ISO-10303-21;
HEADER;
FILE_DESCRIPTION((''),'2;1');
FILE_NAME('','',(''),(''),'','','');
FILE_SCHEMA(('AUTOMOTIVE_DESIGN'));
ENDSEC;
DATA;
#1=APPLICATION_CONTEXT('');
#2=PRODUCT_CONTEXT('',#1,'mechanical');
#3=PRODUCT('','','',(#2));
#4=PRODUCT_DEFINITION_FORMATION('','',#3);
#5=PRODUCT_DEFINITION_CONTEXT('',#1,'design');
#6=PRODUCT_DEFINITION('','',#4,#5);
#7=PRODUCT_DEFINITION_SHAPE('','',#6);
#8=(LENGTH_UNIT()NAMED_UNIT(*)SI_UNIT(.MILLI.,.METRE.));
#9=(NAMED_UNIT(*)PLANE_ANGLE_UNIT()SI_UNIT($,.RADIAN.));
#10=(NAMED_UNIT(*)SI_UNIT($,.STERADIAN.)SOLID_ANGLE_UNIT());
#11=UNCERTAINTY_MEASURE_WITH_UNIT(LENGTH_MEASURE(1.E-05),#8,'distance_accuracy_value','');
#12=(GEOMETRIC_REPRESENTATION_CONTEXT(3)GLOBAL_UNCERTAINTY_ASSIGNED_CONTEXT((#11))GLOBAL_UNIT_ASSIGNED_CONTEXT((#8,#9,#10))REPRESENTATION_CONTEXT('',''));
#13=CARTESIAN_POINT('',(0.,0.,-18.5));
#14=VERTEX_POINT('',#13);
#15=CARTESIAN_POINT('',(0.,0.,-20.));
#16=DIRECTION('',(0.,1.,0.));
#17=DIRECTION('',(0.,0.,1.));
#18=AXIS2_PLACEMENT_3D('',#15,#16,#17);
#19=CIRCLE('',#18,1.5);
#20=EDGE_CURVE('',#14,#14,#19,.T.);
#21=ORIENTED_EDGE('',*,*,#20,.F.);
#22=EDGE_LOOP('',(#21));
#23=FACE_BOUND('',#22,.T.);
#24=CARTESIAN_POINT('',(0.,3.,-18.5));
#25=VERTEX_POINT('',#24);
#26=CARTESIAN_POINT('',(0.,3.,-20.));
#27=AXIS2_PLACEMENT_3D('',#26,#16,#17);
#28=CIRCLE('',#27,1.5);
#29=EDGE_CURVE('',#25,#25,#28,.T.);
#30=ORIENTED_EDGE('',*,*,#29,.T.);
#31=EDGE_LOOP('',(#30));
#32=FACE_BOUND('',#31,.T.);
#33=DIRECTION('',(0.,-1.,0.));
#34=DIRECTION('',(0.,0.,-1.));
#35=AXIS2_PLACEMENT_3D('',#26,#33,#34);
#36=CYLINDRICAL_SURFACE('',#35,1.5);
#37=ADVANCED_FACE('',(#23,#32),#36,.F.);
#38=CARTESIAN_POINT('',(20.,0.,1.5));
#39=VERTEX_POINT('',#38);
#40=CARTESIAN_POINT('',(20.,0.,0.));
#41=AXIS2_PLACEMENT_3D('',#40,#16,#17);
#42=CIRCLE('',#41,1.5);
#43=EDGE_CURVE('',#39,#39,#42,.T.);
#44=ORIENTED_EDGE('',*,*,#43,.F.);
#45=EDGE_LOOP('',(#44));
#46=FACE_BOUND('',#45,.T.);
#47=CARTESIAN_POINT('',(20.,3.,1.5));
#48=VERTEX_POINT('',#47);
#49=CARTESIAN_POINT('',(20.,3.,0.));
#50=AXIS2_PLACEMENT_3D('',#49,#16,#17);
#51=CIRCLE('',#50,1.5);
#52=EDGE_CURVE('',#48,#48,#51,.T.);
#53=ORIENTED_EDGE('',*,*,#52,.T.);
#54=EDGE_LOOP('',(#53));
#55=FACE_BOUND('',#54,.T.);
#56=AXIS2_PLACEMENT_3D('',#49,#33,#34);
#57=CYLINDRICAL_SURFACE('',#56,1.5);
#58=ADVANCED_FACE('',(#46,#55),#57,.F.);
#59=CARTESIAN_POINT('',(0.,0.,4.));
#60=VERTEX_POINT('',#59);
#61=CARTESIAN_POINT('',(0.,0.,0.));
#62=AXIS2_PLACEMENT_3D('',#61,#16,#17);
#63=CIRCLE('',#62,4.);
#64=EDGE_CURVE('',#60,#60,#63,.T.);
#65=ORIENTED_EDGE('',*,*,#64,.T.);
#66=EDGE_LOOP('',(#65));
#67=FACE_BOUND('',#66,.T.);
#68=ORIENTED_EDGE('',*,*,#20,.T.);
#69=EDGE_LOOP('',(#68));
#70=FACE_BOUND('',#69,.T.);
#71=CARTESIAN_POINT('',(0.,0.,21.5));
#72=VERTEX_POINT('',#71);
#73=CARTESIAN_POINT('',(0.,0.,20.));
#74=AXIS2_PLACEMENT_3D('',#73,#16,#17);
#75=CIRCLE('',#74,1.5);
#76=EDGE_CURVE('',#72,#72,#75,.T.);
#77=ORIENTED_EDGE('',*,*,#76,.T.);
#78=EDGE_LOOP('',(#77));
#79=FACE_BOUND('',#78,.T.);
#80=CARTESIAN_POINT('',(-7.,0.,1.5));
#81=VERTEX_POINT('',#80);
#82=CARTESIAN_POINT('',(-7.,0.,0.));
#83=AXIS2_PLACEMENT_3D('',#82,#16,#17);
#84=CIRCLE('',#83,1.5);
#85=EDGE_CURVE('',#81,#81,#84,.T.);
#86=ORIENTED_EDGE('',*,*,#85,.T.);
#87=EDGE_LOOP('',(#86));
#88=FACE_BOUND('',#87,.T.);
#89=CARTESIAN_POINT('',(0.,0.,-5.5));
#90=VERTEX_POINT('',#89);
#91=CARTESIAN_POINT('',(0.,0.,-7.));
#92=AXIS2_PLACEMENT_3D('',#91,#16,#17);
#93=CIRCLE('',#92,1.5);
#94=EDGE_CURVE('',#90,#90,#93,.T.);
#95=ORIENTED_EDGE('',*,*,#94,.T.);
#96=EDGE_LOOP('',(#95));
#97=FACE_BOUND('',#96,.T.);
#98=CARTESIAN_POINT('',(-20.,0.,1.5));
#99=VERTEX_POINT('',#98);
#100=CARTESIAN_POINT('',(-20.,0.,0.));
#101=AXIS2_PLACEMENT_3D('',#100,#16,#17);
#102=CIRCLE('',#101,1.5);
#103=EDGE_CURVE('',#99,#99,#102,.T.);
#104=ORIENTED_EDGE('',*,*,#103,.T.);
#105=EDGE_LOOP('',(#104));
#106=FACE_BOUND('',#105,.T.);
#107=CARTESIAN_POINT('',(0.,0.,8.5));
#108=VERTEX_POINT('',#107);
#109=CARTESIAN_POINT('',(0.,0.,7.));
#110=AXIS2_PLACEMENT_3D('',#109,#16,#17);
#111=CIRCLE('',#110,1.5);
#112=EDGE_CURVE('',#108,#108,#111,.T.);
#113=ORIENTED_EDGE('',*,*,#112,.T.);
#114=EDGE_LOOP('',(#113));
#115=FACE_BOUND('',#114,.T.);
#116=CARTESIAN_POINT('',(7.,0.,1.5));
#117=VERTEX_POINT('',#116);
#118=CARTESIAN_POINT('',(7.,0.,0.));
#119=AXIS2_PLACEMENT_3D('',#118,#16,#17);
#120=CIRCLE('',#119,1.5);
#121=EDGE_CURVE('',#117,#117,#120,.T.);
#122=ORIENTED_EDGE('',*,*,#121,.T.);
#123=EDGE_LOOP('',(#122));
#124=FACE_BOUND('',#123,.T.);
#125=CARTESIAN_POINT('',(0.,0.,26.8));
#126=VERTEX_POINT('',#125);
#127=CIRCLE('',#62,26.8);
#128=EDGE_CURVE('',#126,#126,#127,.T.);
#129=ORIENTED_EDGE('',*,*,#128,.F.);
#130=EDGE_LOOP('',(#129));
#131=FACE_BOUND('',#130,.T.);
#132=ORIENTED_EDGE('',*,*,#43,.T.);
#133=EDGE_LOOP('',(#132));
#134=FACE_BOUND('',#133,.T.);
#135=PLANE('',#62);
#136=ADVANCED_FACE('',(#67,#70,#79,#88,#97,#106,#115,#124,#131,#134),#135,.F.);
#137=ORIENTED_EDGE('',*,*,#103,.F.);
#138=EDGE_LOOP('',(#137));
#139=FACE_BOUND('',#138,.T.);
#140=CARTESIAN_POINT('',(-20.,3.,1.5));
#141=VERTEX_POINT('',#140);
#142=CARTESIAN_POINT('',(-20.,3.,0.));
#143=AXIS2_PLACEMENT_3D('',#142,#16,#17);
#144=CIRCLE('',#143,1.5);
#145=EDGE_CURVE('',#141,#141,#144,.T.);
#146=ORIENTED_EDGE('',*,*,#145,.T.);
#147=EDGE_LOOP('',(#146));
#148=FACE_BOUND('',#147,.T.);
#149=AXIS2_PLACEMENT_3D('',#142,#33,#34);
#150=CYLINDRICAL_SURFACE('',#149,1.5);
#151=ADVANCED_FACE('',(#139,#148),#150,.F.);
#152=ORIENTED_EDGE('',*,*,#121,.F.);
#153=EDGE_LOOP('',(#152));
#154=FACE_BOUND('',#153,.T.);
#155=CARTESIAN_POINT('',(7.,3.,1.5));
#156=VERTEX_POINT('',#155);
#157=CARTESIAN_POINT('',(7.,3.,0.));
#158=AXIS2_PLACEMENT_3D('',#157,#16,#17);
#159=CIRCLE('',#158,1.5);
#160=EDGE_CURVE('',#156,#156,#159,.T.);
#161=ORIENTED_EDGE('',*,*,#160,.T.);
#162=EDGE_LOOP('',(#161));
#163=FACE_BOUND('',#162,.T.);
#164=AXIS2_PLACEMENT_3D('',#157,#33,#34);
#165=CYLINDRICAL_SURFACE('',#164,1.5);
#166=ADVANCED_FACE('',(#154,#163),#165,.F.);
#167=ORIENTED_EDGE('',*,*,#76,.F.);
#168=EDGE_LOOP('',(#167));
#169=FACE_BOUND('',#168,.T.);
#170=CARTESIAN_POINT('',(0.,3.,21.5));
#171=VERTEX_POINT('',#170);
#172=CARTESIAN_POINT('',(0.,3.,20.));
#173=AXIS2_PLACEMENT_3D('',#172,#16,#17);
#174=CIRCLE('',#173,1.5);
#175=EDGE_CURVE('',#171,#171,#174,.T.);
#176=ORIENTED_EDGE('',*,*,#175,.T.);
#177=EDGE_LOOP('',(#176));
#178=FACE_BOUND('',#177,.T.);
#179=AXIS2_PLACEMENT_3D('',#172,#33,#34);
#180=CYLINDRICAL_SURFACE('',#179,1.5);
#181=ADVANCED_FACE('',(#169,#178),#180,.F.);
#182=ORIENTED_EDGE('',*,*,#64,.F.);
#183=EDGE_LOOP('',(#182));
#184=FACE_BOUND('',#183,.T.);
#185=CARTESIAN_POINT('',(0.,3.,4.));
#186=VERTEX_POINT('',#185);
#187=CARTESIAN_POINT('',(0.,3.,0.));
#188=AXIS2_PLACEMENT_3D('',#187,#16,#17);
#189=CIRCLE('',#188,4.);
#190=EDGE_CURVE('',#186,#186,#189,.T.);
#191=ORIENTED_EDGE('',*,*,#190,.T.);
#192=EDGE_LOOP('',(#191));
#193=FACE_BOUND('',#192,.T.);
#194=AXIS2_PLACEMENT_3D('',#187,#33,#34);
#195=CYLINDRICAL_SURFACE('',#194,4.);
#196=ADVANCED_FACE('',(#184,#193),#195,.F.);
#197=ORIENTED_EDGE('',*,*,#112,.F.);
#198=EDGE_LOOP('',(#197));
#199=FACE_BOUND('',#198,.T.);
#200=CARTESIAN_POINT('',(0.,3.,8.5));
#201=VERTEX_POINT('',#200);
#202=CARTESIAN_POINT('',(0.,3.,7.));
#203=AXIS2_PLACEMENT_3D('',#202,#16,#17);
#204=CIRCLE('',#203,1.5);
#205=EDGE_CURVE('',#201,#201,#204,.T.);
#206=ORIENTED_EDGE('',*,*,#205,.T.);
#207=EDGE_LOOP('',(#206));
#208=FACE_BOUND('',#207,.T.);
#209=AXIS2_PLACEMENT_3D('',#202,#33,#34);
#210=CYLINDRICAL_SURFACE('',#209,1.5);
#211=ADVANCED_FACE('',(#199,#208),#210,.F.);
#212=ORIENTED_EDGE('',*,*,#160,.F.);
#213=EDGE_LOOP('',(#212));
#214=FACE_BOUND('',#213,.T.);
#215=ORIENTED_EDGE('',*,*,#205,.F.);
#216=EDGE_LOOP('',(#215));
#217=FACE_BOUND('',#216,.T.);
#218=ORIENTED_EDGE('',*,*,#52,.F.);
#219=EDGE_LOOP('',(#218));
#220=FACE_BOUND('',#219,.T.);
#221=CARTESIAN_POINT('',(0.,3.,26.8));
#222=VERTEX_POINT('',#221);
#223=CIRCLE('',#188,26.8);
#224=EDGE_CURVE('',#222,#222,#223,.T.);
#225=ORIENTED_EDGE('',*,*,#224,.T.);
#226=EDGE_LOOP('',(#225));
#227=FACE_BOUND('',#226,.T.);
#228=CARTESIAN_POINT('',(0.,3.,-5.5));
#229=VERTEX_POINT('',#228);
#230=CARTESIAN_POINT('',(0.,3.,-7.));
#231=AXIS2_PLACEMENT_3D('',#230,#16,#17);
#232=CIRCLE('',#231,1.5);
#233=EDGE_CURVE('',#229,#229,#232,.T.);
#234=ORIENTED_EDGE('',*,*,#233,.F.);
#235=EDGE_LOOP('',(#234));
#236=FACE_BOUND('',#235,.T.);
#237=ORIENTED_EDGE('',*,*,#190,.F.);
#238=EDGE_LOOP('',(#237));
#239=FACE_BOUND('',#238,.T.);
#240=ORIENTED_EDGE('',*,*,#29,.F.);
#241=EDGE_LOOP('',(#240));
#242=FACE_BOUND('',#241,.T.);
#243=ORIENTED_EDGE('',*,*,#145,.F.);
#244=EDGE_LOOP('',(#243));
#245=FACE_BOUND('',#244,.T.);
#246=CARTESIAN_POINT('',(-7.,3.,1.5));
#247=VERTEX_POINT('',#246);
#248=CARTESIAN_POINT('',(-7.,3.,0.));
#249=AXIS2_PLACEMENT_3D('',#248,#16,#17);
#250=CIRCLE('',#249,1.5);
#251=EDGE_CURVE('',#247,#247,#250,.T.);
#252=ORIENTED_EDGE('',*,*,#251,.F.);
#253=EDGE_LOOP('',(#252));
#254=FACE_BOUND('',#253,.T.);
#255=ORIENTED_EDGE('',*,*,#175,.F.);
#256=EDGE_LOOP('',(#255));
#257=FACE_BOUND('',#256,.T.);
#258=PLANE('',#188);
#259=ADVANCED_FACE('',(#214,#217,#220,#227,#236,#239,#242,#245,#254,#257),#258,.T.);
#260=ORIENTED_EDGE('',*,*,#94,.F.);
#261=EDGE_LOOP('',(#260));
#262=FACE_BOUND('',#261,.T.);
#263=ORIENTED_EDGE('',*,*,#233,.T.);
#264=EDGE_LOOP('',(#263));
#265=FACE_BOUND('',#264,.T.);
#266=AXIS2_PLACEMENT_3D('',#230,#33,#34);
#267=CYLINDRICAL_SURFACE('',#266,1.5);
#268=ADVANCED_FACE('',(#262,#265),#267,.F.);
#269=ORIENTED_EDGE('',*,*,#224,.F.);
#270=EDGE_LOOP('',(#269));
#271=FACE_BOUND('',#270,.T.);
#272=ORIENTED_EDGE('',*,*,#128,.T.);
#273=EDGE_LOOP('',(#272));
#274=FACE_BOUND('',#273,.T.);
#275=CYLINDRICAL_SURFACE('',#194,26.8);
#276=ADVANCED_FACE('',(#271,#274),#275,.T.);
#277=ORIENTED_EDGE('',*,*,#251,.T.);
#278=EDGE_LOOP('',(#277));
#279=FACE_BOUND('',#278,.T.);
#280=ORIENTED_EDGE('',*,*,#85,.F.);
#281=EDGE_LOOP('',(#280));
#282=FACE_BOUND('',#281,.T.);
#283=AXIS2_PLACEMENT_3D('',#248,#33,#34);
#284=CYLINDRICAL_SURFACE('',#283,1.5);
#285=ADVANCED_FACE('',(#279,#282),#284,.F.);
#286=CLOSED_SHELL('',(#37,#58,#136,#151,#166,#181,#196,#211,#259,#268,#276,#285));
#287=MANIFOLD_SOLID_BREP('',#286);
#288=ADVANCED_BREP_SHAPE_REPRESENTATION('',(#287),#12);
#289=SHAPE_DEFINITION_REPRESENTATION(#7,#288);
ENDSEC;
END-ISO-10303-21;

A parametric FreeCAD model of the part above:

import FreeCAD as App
import Part
import Sketcher

doc = App.newDocument("Part")
body = doc.addObject("PartDesign::Body", "Body")

# Sketch on XZ plane
sketch1 = body.newObject("Sketcher::SketchObject", "Sketch")
sketch1.AttachmentSupport = (doc.getObject("XZ_Plane"), [""])
sketch1.MapMode = "FlatFace"
sketch1.addGeometry(Part.Circle(App.Vector(0, 0, 0), App.Vector(0, 0, 1), 26.8), False)
sketch1.addGeometry(Part.Circle(App.Vector(0, -20, 0), App.Vector(0, 0, 1), 1.5), False)
sketch1.addGeometry(Part.Circle(App.Vector(-20, 0, 0), App.Vector(0, 0, 1), 1.5), False)
sketch1.addGeometry(Part.Circle(App.Vector(-7, 0, 0), App.Vector(0, 0, 1), 1.5), False)
sketch1.addGeometry(Part.Circle(App.Vector(0, -7, 0), App.Vector(0, 0, 1), 1.5), False)
sketch1.addGeometry(Part.Circle(App.Vector(20, 0, 0), App.Vector(0, 0, 1), 1.5), False)
sketch1.addGeometry(Part.Circle(App.Vector(0, 0, 0), App.Vector(0, 0, 1), 4), False)
sketch1.addGeometry(Part.Circle(App.Vector(0, 7, 0), App.Vector(0, 0, 1), 1.5), False)
sketch1.addGeometry(Part.Circle(App.Vector(7, 0, 0), App.Vector(0, 0, 1), 1.5), False)
sketch1.addGeometry(Part.Circle(App.Vector(0, 20, 0), App.Vector(0, 0, 1), 1.5), False)
sketch1.addConstraint(Sketcher.Constraint("Coincident", 0, 3, -1, 1))
sketch1.addConstraint(Sketcher.Constraint("Coincident", 6, 3, -1, 1))
sketch1.addConstraint(Sketcher.Constraint("Equal", 1, 2))
sketch1.addConstraint(Sketcher.Constraint("Equal", 2, 3))
sketch1.addConstraint(Sketcher.Constraint("Equal", 3, 4))
sketch1.addConstraint(Sketcher.Constraint("Equal", 4, 5))
sketch1.addConstraint(Sketcher.Constraint("Equal", 5, 7))
sketch1.addConstraint(Sketcher.Constraint("Equal", 7, 8))
sketch1.addConstraint(Sketcher.Constraint("Equal", 8, 9))
sketch1.addConstraint(Sketcher.Constraint("Symmetric", 2, 3, 5, 3, -1, 1))
sketch1.addConstraint(Sketcher.Constraint("Symmetric", 4, 3, 7, 3, -1, 1))
sketch1.addConstraint(Sketcher.Constraint("Symmetric", 3, 3, 8, 3, -1, 1))
sketch1.addConstraint(Sketcher.Constraint("Symmetric", 1, 3, 9, 3, -1, 1))
sketch1.addConstraint(Sketcher.Constraint("PointOnObject", 1, 3, -2))
sketch1.addConstraint(Sketcher.Constraint("PointOnObject", 2, 3, -1))
sketch1.addConstraint(Sketcher.Constraint("PointOnObject", 3, 3, -1))
sketch1.addConstraint(Sketcher.Constraint("PointOnObject", 4, 3, -2))
sketch1.addConstraint(Sketcher.Constraint("Diameter", 1, 3.0))
sketch1.addConstraint(Sketcher.Constraint("Diameter", 6, 8.0))
sketch1.addConstraint(Sketcher.Constraint("Diameter", 0, 53.6))
sketch1.addConstraint(Sketcher.Constraint("DistanceY", 1, 3, -1, 1, 20.0))
sketch1.addConstraint(Sketcher.Constraint("DistanceX", 2, 3, -1, 1, 20.0))
sketch1.addConstraint(Sketcher.Constraint("DistanceX", 3, 3, -1, 1, 7.0))
sketch1.addConstraint(Sketcher.Constraint("DistanceY", 4, 3, -1, 1, 7.0))
pad1 = body.newObject("PartDesign::Pad", "Pad")
pad1.Profile = sketch1
pad1.Length = 3
pad1.Reversed = True

doc.recompute()
